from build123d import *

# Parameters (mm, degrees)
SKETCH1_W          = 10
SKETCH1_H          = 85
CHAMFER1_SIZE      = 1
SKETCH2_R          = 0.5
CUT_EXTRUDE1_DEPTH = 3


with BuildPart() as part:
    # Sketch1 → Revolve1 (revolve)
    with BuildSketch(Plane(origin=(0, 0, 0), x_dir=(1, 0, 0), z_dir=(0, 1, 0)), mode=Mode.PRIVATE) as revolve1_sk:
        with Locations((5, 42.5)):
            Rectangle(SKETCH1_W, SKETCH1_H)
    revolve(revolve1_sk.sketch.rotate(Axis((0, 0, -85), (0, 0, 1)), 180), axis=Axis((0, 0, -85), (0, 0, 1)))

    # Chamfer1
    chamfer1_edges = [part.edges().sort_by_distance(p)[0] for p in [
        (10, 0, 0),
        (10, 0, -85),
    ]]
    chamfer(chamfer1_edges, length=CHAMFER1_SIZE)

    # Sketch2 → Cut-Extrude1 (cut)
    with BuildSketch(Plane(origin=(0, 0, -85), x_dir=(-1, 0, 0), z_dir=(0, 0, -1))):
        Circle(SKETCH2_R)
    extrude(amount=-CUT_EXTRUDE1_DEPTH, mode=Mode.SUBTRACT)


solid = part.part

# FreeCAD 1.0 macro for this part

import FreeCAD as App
import Part
import Sketcher
from FreeCAD import Vector


def edges_at(feature, points):
    """Names of the edges that pass closest to the given points."""
    edges = feature.Shape.Edges
    near = lambda p: min(range(len(edges)), key=lambda i: edges[i].distToShape(Part.Vertex(*p))[0])
    return sorted({f"Edge{near(p) + 1}" for p in points})

doc = App.newDocument("Part")
body = doc.addObject("PartDesign::Body", "Body")

sketch1 = body.newObject("Sketcher::SketchObject", "Sketch")
sketch1.AttachmentSupport = (doc.getObject("XZ_Plane"), [""])
sketch1.MapMode = "FlatFace"
sketch1.addGeometry([
    Part.LineSegment(Vector(0, -85, 0), Vector(0, 0, 0)),
    Part.LineSegment(Vector(0, 0, 0), Vector(10, 0, 0)),
    Part.LineSegment(Vector(10, 0, 0), Vector(10, -85, 0)),
    Part.LineSegment(Vector(10, -85, 0), Vector(0, -85, 0)),
], False)
sketch1.addConstraint([
    Sketcher.Constraint("Coincident", 0, 2, 1, 1),
    Sketcher.Constraint("Coincident", 1, 2, 2, 1),
    Sketcher.Constraint("Coincident", 2, 2, 3, 1),
    Sketcher.Constraint("Coincident", 3, 2, 0, 1),
    Sketcher.Constraint("Vertical", 0),
    Sketcher.Constraint("Horizontal", 1),
    Sketcher.Constraint("Vertical", 2),
    Sketcher.Constraint("Horizontal", 3),
    Sketcher.Constraint("Coincident", 0, 2, -1, 1),
    Sketcher.Constraint("DistanceX", 1, 1, 1, 2, 10.0),
    Sketcher.Constraint("DistanceY", 0, 1, 0, 2, 85.0),
])
revolution = body.newObject("PartDesign::Revolution", "Revolution")
revolution.Profile = sketch1
revolution.ReferenceAxis = (sketch1, ["V_Axis"])
revolution.Angle = 360
doc.recompute()

chamfer = body.newObject("PartDesign::Chamfer", "Chamfer")
chamfer.Base = (revolution, edges_at(revolution, [(10, 0, 0), (10, 0, -85)]))
chamfer.Size = 1

sketch2 = body.newObject("Sketcher::SketchObject", "Sketch001")
sketch2.AttachmentSupport = (doc.getObject("XY_Plane"), [""])
sketch2.MapMode = "FlatFace"
sketch2.AttachmentOffset = App.Placement(Vector(0, 0, -85), App.Rotation())
sketch2.addGeometry(Part.Circle(Vector(0, 0, 0), Vector(0, 0, 1), 0.5), False)
sketch2.addConstraint([
    Sketcher.Constraint("Coincident", 0, 3, -1, 1),
    Sketcher.Constraint("Diameter", 0, 1.0),
])
pocket1 = body.newObject("PartDesign::Pocket", "Pocket")
pocket1.Profile = sketch2
pocket1.Length = 3
pocket1.Reversed = True

doc.recompute()
